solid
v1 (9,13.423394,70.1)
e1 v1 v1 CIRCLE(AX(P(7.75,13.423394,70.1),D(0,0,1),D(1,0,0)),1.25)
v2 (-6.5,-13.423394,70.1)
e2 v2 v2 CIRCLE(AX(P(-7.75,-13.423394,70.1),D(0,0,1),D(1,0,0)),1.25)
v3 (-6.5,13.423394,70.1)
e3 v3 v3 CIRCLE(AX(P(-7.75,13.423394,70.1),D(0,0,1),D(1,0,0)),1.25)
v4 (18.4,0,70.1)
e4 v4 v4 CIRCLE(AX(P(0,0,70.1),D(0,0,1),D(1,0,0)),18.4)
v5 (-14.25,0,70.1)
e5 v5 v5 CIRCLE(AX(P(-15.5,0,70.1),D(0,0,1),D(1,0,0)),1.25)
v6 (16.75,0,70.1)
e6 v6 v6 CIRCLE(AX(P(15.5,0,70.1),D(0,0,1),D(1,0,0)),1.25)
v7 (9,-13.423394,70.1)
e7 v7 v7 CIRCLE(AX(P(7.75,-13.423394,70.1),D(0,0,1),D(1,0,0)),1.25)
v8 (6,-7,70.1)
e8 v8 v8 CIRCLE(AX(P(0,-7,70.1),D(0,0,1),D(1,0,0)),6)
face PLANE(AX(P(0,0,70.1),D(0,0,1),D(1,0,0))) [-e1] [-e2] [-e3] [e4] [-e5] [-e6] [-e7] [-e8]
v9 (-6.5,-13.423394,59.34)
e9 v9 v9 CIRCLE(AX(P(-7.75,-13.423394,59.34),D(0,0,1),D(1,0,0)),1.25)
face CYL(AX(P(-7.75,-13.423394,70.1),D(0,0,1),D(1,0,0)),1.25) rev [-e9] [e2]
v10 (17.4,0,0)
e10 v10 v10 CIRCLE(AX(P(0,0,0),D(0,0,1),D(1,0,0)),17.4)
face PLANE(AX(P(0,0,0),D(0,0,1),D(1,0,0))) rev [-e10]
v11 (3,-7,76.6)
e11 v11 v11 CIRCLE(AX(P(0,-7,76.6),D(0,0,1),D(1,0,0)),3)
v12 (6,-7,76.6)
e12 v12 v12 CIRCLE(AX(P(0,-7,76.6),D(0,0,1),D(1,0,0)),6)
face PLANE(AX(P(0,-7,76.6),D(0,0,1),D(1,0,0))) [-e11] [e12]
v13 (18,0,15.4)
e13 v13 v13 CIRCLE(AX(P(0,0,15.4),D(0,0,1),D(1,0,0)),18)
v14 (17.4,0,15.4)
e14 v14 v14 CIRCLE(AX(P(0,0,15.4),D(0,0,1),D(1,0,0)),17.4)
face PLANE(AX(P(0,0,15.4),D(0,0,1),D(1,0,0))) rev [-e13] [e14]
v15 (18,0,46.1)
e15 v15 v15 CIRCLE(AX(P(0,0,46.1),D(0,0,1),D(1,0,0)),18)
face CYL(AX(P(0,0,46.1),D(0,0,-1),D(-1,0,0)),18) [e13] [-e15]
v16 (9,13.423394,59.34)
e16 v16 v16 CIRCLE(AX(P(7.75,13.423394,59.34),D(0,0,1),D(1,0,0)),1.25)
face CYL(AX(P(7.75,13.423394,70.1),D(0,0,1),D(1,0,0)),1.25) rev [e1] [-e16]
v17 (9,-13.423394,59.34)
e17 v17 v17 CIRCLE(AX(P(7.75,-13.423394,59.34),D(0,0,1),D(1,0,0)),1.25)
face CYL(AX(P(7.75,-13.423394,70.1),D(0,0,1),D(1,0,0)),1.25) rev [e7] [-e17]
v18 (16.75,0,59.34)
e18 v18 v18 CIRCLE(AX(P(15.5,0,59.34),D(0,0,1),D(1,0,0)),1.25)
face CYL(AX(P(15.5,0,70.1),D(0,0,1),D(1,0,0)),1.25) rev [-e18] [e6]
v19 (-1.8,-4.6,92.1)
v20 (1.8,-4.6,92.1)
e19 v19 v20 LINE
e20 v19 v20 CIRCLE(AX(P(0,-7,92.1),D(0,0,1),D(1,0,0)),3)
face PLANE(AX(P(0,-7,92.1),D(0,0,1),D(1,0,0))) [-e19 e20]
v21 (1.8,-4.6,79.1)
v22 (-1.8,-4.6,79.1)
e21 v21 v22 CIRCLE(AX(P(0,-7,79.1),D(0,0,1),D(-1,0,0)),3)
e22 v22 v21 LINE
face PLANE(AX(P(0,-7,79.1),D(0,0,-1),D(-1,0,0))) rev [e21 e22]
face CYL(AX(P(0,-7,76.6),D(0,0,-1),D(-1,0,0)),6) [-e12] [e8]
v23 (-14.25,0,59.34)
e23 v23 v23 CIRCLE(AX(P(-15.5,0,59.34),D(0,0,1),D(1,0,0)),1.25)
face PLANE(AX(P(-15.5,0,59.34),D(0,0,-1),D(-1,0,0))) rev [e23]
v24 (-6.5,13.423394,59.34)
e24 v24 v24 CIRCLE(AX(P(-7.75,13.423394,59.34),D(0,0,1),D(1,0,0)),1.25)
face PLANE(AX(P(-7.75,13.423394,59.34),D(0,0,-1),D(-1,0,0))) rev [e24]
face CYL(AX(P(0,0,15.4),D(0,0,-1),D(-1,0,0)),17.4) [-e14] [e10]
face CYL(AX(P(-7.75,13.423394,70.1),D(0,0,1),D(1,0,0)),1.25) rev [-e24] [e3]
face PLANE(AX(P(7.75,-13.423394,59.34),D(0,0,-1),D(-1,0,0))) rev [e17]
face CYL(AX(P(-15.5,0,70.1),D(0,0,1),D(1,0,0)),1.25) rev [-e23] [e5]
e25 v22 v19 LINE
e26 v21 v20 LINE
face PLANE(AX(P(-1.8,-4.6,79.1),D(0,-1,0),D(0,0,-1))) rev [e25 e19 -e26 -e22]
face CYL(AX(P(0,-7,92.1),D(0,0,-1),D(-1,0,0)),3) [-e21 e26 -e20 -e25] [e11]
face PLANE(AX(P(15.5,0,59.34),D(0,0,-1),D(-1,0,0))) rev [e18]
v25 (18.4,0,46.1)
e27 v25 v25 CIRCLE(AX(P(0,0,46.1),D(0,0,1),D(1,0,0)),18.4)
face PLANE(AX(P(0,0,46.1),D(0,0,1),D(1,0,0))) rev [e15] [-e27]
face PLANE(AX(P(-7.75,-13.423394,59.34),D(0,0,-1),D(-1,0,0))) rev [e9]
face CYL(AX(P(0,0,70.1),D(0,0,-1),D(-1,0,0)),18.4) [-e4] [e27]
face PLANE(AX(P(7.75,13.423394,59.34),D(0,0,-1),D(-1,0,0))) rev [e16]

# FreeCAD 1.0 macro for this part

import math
import FreeCAD as App
import Part
import Sketcher
from FreeCAD import Vector
Q = App.Units.Quantity

doc = App.newDocument("Part")
body = doc.addObject("PartDesign::Body", "Body")

sketch1 = body.newObject("Sketcher::SketchObject", "Sketch")
sketch1.AttachmentSupport = (doc.getObject("XY_Plane"), [""])
sketch1.MapMode = "FlatFace"
sketch1.addGeometry(Part.Circle(Vector(0, 0, 0), Vector(0, 0, 1), 17), False)
sketch1.addConstraint([
    Sketcher.Constraint("Coincident", 0, 3, -1, 1),
    Sketcher.Constraint("Diameter", 0, Q("34.8 mm")),
])
pad1 = body.newObject("PartDesign::Pad", "Pad")
pad1.Profile = sketch1
pad1.Length = 15.4

sketch2 = body.newObject("Sketcher::SketchObject", "Sketch001")
sketch2.AttachmentSupport = (doc.getObject("XY_Plane"), [""])
sketch2.MapMode = "FlatFace"
sketch2.AttachmentOffset = App.Placement(Vector(0, 0, 15.4), App.Rotation())
sketch2.addGeometry(Part.Circle(Vector(0, 0, 0), Vector(0, 0, 1), 18), False)
sketch2.addConstraint([
    Sketcher.Constraint("Coincident", 0, 3, -1, 1),
    Sketcher.Constraint("Diameter", 0, Q("36 mm")),
])
pad2 = body.newObject("PartDesign::Pad", "Pad001")
pad2.Profile = sketch2
pad2.Length = 30.7

sketch3 = body.newObject("Sketcher::SketchObject", "Sketch002")
sketch3.AttachmentSupport = (doc.getObject("XY_Plane"), [""])
sketch3.MapMode = "FlatFace"
sketch3.AttachmentOffset = App.Placement(Vector(0, 0, 46.1), App.Rotation())
sketch3.addGeometry(Part.Circle(Vector(0, 0, 0), Vector(0, 0, 1), 18), False)
sketch3.addConstraint([
    Sketcher.Constraint("Coincident", 0, 3, -1, 1),
    Sketcher.Constraint("Diameter", 0, Q("36.8 mm")),
])
pad3 = body.newObject("PartDesign::Pad", "Pad002")
pad3.Profile = sketch3
pad3.Length = 24

sketch4 = body.newObject("Sketcher::SketchObject", "Sketch003")
sketch4.AttachmentSupport = (doc.getObject("XY_Plane"), [""])
sketch4.MapMode = "FlatFace"
sketch4.AttachmentOffset = App.Placement(Vector(0, 0, 70.1), App.Rotation())
sketch4.addGeometry(Part.Circle(Vector(0, -7, 0), Vector(0, 0, 1), 6), False)
sketch4.addConstraint([
    Sketcher.Constraint("PointOnObject", 0, 3, -2),
    Sketcher.Constraint("Diameter", 0, Q("12 mm")),
    Sketcher.Constraint("DistanceY", 0, 3, -1, 1, Q("7 mm")),
])
pad4 = body.newObject("PartDesign::Pad", "Pad003")
pad4.Profile = sketch4
pad4.Length = 6.5

sketch5 = body.newObject("Sketcher::SketchObject", "Sketch004")
sketch5.AttachmentSupport = (doc.getObject("XY_Plane"), [""])
sketch5.MapMode = "FlatFace"
sketch5.AttachmentOffset = App.Placement(Vector(0, 0, 76.6), App.Rotation())
sketch5.addGeometry(Part.Circle(Vector(0, -7, 0), Vector(0, 0, 1), 3), False)
sketch5.addConstraint([
    Sketcher.Constraint("PointOnObject", 0, 3, -2),
    Sketcher.Constraint("Diameter", 0, Q("6 mm")),
    Sketcher.Constraint("DistanceY", 0, 3, -1, 1, Q("7 mm")),
])
pad5 = body.newObject("PartDesign::Pad", "Pad004")
pad5.Profile = sketch5
pad5.Length = 15.5

sketch6 = body.newObject("Sketcher::SketchObject", "Sketch005")
sketch6.AttachmentSupport = (doc.getObject("XY_Plane"), [""])
sketch6.MapMode = "FlatFace"
sketch6.AttachmentOffset = App.Placement(Vector(0, 0, 92.1), App.Rotation())
sketch6.addGeometry([
    Part.LineSegment(Vector(-1.8, -4.6, 0), Vector(1.8, -4.6, 0)),
    Part.ArcOfCircle(Part.Circle(Vector(0, -7, 0), Vector(0, 0, 1), 3), math.radians(53), math.radians(127)),
], False)
sketch6.addConstraint([
    Sketcher.Constraint("Coincident", 0, 1, 1, 2),
    Sketcher.Constraint("Coincident", 1, 1, 0, 2),
    Sketcher.Constraint("Horizontal", 0),
    Sketcher.Constraint("PointOnObject", 1, 3, -2),
    Sketcher.Constraint("Radius", 1, Q("3 mm")),
    Sketcher.Constraint("DistanceX", 0, 1, 0, 2, Q("3.6 mm")),
    Sketcher.Constraint("DistanceY", 1, 3, -1, 1, Q("7 mm")),
])
pocket1 = body.newObject("PartDesign::Pocket", "Pocket")
pocket1.Profile = sketch6
pocket1.Length = 13

sketch7 = body.newObject("Sketcher::SketchObject", "Sketch006")
sketch7.AttachmentSupport = (doc.getObject("XY_Plane"), [""])
sketch7.MapMode = "FlatFace"
sketch7.AttachmentOffset = App.Placement(Vector(0, 0, 70.1), App.Rotation())
sketch7.addGeometry([
    Part.Circle(Vector(-15.5, 0, 0), Vector(0, 0, 1), 1.2),
    Part.Circle(Vector(-7.8, 13.4, 0), Vector(0, 0, 1), 1.2),
    Part.Circle(Vector(7.8, 13.4, 0), Vector(0, 0, 1), 1.2),
    Part.Circle(Vector(15.5, 0, 0), Vector(0, 0, 1), 1.2),
    Part.Circle(Vector(7.8, -13.4, 0), Vector(0, 0, 1), 1.2),
    Part.Circle(Vector(-7.8, -13.4, 0), Vector(0, 0, 1), 1.2),
], False)
sketch7.addConstraint([
    Sketcher.Constraint("Equal", 0, 1),
    Sketcher.Constraint("Equal", 1, 2),
    Sketcher.Constraint("Equal", 2, 3),
    Sketcher.Constraint("Equal", 3, 4),
    Sketcher.Constraint("Equal", 4, 5),
    Sketcher.Constraint("Symmetric", 0, 3, 3, 3, -1, 1),
    Sketcher.Constraint("Symmetric", 1, 3, 4, 3, -1, 1),
    Sketcher.Constraint("Symmetric", 2, 3, 5, 3, -1, 1),
    Sketcher.Constraint("Symmetric", 1, 3, 2, 3, -2),
    Sketcher.Constraint("PointOnObject", 0, 3, -1),
    Sketcher.Constraint("Diameter", 0, Q("2.5 mm")),
    Sketcher.Constraint("DistanceX", 0, 3, 3, 3, Q("31 mm")),
    Sketcher.Constraint("DistanceX", 1, 3, 2, 3, Q("15.5 mm")),
    Sketcher.Constraint("DistanceY", -1, 1, 1, 3, Q("13.423394 mm")),
])
doc.recompute()
hole = body.newObject("PartDesign::Hole", "Hole")
hole.Profile = sketch7
hole.ThreadType = "None"
hole.Diameter = 2.5
hole.DepthType = "Dimension"
hole.Depth = 10.76
hole.DrillPoint = "Flat"

doc.recompute()
